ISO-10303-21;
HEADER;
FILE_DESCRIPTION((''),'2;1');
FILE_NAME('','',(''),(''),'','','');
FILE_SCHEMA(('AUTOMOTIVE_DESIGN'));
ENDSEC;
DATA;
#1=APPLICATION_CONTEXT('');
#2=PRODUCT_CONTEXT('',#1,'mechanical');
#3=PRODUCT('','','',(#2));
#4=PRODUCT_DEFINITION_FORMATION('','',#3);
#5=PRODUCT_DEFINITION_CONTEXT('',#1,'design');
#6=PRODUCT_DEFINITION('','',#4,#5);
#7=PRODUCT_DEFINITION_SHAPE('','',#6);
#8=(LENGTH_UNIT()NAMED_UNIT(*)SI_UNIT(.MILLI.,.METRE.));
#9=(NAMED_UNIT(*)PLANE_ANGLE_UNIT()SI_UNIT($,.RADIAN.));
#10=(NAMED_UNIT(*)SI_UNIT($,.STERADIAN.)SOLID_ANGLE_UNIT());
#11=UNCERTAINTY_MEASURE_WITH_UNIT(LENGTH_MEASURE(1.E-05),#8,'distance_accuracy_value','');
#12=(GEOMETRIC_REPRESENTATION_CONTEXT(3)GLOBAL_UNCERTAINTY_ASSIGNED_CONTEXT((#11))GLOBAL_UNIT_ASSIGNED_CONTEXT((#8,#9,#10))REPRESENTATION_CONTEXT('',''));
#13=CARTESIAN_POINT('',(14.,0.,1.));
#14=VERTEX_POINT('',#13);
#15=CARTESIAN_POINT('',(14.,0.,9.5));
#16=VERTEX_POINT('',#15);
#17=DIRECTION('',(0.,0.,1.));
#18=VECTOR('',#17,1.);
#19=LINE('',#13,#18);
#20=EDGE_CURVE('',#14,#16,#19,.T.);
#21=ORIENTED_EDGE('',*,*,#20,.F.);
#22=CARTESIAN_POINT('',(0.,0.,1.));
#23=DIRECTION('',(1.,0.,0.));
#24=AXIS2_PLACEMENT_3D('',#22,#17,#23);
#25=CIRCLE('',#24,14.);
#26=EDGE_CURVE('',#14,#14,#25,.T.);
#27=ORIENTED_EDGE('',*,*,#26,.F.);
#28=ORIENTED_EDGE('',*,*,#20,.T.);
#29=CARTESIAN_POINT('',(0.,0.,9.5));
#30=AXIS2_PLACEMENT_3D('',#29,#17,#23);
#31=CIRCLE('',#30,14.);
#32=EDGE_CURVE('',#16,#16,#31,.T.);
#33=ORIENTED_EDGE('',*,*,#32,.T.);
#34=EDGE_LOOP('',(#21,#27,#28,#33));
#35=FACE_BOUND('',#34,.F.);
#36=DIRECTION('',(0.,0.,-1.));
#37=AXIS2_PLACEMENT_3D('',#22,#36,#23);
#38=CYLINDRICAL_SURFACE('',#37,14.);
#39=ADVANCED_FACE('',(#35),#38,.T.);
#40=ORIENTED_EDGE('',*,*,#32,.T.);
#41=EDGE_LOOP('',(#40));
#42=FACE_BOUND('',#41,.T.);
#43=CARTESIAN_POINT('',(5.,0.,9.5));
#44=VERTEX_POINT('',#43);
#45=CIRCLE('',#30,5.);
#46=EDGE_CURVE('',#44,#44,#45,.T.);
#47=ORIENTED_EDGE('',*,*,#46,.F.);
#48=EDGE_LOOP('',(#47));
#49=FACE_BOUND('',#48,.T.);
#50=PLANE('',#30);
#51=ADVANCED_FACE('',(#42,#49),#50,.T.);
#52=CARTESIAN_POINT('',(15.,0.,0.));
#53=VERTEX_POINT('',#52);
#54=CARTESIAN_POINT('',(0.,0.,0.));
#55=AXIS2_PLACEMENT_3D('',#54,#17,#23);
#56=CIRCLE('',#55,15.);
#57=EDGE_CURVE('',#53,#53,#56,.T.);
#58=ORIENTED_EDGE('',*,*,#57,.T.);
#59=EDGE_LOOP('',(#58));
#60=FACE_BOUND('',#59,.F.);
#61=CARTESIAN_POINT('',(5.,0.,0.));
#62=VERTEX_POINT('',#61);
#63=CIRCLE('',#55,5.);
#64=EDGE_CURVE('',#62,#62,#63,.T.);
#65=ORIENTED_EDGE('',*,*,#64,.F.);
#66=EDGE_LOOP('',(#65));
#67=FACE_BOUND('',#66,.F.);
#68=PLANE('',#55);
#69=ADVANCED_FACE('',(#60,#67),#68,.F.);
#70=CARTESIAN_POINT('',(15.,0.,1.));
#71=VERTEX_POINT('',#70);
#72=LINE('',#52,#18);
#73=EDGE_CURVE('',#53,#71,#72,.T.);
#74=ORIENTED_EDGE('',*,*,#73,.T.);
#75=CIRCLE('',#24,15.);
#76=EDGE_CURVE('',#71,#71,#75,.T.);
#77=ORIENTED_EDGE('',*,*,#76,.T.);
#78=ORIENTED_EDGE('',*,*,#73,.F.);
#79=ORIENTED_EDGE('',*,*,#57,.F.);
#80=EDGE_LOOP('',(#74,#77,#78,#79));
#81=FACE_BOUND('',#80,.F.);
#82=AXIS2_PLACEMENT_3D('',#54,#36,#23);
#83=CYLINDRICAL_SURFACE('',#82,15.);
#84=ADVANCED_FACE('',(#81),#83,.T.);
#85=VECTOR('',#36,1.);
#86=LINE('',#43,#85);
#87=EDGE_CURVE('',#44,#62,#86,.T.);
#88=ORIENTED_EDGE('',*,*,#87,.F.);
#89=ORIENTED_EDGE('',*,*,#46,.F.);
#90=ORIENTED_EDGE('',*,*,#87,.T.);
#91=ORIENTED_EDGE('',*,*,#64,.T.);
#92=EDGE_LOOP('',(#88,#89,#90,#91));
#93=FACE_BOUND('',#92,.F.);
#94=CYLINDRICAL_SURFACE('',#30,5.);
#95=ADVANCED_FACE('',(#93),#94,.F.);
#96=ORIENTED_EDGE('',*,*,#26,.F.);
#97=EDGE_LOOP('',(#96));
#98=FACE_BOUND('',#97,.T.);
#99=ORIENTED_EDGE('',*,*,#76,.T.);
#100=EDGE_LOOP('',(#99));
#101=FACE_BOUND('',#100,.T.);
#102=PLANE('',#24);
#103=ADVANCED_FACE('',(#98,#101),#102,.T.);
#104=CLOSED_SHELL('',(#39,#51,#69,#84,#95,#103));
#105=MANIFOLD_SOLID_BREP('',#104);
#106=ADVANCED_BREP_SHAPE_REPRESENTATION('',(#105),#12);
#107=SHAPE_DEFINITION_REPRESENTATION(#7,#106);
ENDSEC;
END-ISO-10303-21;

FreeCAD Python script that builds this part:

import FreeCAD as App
import Part
import Sketcher
from FreeCAD import Vector
Q = App.Units.Quantity

doc = App.newDocument("Part")
body = doc.addObject("PartDesign::Body", "Body")

sketch1 = body.newObject("Sketcher::SketchObject", "Sketch")
sketch1.AttachmentSupport = (doc.getObject("XY_Plane"), [""])
sketch1.MapMode = "FlatFace"
sketch1.addGeometry(Part.Circle(Vector(0, 0, 0), Vector(0, 0, 1), 15), False)
sketch1.addConstraint(Sketcher.Constraint("Coincident", 0, 3, -1, 1))
sketch1.addConstraint(Sketcher.Constraint("Diameter", 0, Q("30 mm")))
pad1 = body.newObject("PartDesign::Pad", "Pad")
pad1.Profile = sketch1
pad1.Length = 1

sketch2 = body.newObject("Sketcher::SketchObject", "Sketch001")
sketch2.AttachmentSupport = (doc.getObject("XY_Plane"), [""])
sketch2.MapMode = "FlatFace"
sketch2.AttachmentOffset = App.Placement(Vector(0, 0, 1), App.Rotation())
sketch2.addGeometry(Part.Circle(Vector(0, 0, 0), Vector(0, 0, 1), 14), False)
sketch2.addConstraint(Sketcher.Constraint("Coincident", 0, 3, -1, 1))
sketch2.addConstraint(Sketcher.Constraint("Diameter", 0, Q("28 mm")))
pad2 = body.newObject("PartDesign::Pad", "Pad001")
pad2.Profile = sketch2
pad2.Length = 8.5

sketch3 = body.newObject("Sketcher::SketchObject", "Sketch002")
sketch3.AttachmentSupport = (doc.getObject("XY_Plane"), [""])
sketch3.MapMode = "FlatFace"
sketch3.AttachmentOffset = App.Placement(Vector(0, 0, 9.5), App.Rotation())
sketch3.addGeometry(Part.Circle(Vector(0, 0, 0), Vector(0, 0, 1), 5), False)
sketch3.addConstraint(Sketcher.Constraint("Coincident", 0, 3, -1, 1))
sketch3.addConstraint(Sketcher.Constraint("Diameter", 0, Q("10 mm")))
pocket1 = body.newObject("PartDesign::Pocket", "Pocket")
pocket1.Profile = sketch3
pocket1.Type = "ThroughAll"

doc.recompute()
